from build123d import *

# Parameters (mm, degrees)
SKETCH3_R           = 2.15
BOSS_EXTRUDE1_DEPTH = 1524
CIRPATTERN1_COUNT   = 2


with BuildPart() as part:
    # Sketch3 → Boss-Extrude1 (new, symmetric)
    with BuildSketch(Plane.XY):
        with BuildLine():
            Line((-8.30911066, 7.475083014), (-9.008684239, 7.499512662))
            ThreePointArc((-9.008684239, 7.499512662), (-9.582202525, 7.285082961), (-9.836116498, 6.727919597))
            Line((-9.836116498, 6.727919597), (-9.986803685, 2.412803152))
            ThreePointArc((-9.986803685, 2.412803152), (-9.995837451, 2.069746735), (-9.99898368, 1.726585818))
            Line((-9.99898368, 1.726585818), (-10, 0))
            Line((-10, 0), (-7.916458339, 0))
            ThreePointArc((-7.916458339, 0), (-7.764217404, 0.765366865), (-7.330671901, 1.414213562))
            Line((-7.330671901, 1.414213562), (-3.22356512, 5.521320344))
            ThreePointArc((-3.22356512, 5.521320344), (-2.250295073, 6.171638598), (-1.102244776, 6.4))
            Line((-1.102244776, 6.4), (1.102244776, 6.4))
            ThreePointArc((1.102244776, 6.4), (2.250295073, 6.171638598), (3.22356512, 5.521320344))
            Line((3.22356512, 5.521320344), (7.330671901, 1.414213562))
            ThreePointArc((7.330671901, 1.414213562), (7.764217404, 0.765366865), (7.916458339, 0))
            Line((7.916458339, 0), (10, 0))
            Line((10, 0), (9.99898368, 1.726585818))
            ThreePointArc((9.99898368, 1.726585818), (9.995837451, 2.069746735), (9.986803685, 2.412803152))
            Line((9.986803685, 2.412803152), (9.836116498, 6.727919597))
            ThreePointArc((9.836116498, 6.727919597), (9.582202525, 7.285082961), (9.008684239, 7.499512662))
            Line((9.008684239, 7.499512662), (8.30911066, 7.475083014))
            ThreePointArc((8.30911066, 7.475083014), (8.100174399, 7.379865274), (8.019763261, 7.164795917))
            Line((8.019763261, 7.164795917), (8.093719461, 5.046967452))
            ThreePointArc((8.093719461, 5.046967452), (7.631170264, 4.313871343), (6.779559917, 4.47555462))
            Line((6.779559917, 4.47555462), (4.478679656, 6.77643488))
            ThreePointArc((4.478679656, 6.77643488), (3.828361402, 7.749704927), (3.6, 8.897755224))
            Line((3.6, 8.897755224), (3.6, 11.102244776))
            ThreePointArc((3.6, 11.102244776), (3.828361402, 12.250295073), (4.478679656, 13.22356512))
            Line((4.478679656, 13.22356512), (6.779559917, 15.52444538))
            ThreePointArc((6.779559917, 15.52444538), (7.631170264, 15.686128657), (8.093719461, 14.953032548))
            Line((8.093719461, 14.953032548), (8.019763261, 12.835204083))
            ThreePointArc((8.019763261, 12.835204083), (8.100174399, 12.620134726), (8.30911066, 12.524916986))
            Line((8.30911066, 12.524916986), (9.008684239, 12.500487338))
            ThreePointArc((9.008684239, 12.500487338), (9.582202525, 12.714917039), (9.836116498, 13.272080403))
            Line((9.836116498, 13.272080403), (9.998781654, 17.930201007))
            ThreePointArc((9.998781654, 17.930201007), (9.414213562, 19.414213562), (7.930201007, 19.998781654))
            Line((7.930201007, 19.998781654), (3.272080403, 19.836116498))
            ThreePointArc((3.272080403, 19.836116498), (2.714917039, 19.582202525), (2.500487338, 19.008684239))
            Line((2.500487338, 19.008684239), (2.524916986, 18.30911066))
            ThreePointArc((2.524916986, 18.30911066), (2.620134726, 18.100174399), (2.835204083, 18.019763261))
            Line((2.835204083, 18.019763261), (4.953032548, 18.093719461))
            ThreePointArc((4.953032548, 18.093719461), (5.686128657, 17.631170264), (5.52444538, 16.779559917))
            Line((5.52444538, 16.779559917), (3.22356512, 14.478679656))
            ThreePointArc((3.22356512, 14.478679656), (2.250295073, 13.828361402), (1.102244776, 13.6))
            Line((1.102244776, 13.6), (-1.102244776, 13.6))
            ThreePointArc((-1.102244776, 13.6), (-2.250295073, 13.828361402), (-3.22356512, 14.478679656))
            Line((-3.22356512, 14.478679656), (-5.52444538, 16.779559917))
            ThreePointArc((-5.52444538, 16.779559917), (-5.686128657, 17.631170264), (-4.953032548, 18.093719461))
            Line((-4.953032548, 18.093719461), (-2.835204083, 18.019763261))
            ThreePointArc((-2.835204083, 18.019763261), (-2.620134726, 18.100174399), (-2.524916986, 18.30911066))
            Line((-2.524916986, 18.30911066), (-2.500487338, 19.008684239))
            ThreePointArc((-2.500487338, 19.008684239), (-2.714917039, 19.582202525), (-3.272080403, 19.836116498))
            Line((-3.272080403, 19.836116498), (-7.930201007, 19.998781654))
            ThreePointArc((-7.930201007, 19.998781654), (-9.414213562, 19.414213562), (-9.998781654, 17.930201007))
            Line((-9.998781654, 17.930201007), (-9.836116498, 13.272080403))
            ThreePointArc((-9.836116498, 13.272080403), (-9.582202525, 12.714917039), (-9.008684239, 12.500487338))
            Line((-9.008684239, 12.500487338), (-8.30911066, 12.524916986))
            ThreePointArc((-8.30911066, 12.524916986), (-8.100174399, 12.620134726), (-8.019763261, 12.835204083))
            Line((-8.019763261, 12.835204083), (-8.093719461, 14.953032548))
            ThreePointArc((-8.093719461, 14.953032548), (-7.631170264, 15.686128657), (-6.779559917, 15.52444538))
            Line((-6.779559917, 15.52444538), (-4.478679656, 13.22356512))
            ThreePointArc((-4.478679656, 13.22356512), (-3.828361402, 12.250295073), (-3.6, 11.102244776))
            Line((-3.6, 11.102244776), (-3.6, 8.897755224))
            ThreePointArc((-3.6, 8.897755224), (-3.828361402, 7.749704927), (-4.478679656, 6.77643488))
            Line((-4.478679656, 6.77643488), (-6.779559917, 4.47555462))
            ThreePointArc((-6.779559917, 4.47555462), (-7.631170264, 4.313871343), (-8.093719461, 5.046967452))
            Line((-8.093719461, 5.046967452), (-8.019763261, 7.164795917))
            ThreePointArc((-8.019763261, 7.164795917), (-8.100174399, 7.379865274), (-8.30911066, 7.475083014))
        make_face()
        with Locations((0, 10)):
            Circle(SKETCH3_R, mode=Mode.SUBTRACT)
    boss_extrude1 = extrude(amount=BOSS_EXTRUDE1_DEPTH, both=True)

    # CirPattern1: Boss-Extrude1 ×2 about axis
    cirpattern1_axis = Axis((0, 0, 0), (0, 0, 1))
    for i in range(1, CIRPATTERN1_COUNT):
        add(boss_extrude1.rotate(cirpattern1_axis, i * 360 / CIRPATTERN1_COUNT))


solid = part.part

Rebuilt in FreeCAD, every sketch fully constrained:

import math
import FreeCAD as App
import Part
import Sketcher

V = App.Vector
Q = App.Units.Quantity

doc = App.newDocument("Part")
body = doc.addObject("PartDesign::Body", "Body")

# Sketch on XY plane
sketch1 = body.newObject("Sketcher::SketchObject", "Sketch")
sketch1.AttachmentSupport = (doc.getObject("XY_Plane"), [""])
sketch1.MapMode = "FlatFace"
sketch1.addGeometry(Part.LineSegment(V(-8.31, 7.48, 0), V(-9.01, 7.5, 0)), False)
sketch1.addGeometry(Part.ArcOfCircle(Part.Circle(V(-9.04, 6.7, 0), V(0, 0, 1), 0.8), math.radians(88), math.radians(178)), False)
sketch1.addGeometry(Part.LineSegment(V(-9.84, 6.73, 0), V(-9.99, 2.41, 0)), False)
sketch1.addGeometry(Part.ArcOfCircle(Part.Circle(V(10, 1.71, 0), V(0, 0, 1), 20), math.radians(178), math.radians(179.97)), False)
sketch1.addGeometry(Part.LineSegment(V(-10, 1.73, 0), V(-10, 0, 0)), False)
sketch1.addGeometry(Part.LineSegment(V(-10, 0, 0), V(-7.92, 0, 0)), False)
sketch1.addGeometry(Part.ArcOfCircle(Part.Circle(V(-5.92, 0, 0), V(0, 0, 1), 2), math.radians(135), math.radians(180)), False)
sketch1.addGeometry(Part.LineSegment(V(-7.33, 1.41, 0), V(-3.22, 5.52, 0)), False)
sketch1.addGeometry(Part.ArcOfCircle(Part.Circle(V(-1.1, 3.4, 0), V(0, 0, 1), 3), math.radians(90), math.radians(135)), False)
sketch1.addGeometry(Part.LineSegment(V(-1.1, 6.4, 0), V(1.1, 6.4, 0)), False)
sketch1.addGeometry(Part.ArcOfCircle(Part.Circle(V(1.1, 3.4, 0), V(0, 0, 1), 3), math.radians(45), math.radians(90)), False)
sketch1.addGeometry(Part.LineSegment(V(3.22, 5.52, 0), V(7.33, 1.41, 0)), False)
sketch1.addGeometry(Part.ArcOfCircle(Part.Circle(V(5.92, 0, 0), V(0, 0, 1), 2), math.radians(0), math.radians(45)), False)
sketch1.addGeometry(Part.LineSegment(V(7.92, 0, 0), V(10, 0, 0)), False)
sketch1.addGeometry(Part.LineSegment(V(10, 0, 0), V(10, 1.73, 0)), False)
sketch1.addGeometry(Part.ArcOfCircle(Part.Circle(V(-10, 1.71, 0), V(0, 0, 1), 20), math.radians(0.03), math.radians(2)), False)
sketch1.addGeometry(Part.LineSegment(V(9.99, 2.41, 0), V(9.84, 6.73, 0)), False)
sketch1.addGeometry(Part.ArcOfCircle(Part.Circle(V(9.04, 6.7, 0), V(0, 0, 1), 0.8), math.radians(2), math.radians(92)), False)
sketch1.addGeometry(Part.LineSegment(V(9.01, 7.5, 0), V(8.31, 7.48, 0)), False)
sketch1.addGeometry(Part.ArcOfCircle(Part.Circle(V(8.32, 7.18, 0), V(0, 0, 1), 0.3), math.radians(92), math.radians(182)), False)
sketch1.addGeometry(Part.LineSegment(V(8.02, 7.16, 0), V(8.09, 5.05, 0)), False)
sketch1.addGeometry(Part.ArcOfCircle(Part.Circle(V(7.32, 5.02, 0), V(0, 0, 1), 0.77), math.radians(-135), math.radians(2)), False)
sketch1.addGeometry(Part.LineSegment(V(6.78, 4.48, 0), V(4.48, 6.78, 0)), False)
sketch1.addGeometry(Part.ArcOfCircle(Part.Circle(V(6.6, 8.9, 0), V(0, 0, 1), 3), math.radians(180), math.radians(225)), False)
sketch1.addGeometry(Part.LineSegment(V(3.6, 8.9, 0), V(3.6, 11.1, 0)), False)
sketch1.addGeometry(Part.ArcOfCircle(Part.Circle(V(6.6, 11.1, 0), V(0, 0, 1), 3), math.radians(135), math.radians(180)), False)
sketch1.addGeometry(Part.LineSegment(V(4.48, 13.22, 0), V(6.78, 15.52, 0)), False)
sketch1.addGeometry(Part.ArcOfCircle(Part.Circle(V(7.32, 14.98, 0), V(0, 0, 1), 0.77), math.radians(-2), math.radians(135)), False)
sketch1.addGeometry(Part.LineSegment(V(8.09, 14.95, 0), V(8.02, 12.84, 0)), False)
sketch1.addGeometry(Part.ArcOfCircle(Part.Circle(V(8.32, 12.82, 0), V(0, 0, 1), 0.3), math.radians(178), math.radians(268)), False)
sketch1.addGeometry(Part.LineSegment(V(8.31, 12.52, 0), V(9.01, 12.5, 0)), False)
sketch1.addGeometry(Part.ArcOfCircle(Part.Circle(V(9.04, 13.3, 0), V(0, 0, 1), 0.8), math.radians(-92), math.radians(-2)), False)
sketch1.addGeometry(Part.LineSegment(V(9.84, 13.27, 0), V(10, 17.93, 0)), False)
sketch1.addGeometry(Part.ArcOfCircle(Part.Circle(V(8, 18, 0), V(0, 0, 1), 2), math.radians(-2), math.radians(92)), False)
sketch1.addGeometry(Part.LineSegment(V(7.93, 20, 0), V(3.27, 19.84, 0)), False)
sketch1.addGeometry(Part.ArcOfCircle(Part.Circle(V(3.3, 19.04, 0), V(0, 0, 1), 0.8), math.radians(92), math.radians(182)), False)
sketch1.addGeometry(Part.LineSegment(V(2.5, 19.01, 0), V(2.52, 18.31, 0)), False)
sketch1.addGeometry(Part.ArcOfCircle(Part.Circle(V(2.82, 18.32, 0), V(0, 0, 1), 0.3), math.radians(-178), math.radians(-88)), False)
sketch1.addGeometry(Part.LineSegment(V(2.84, 18.02, 0), V(4.95, 18.09, 0)), False)
sketch1.addGeometry(Part.ArcOfCircle(Part.Circle(V(4.98, 17.32, 0), V(0, 0, 1), 0.77), math.radians(-45), math.radians(92)), False)
sketch1.addGeometry(Part.LineSegment(V(5.52, 16.78, 0), V(3.22, 14.48, 0)), False)
sketch1.addGeometry(Part.ArcOfCircle(Part.Circle(V(1.1, 16.6, 0), V(0, 0, 1), 3), math.radians(-90), math.radians(-45)), False)
sketch1.addGeometry(Part.LineSegment(V(1.1, 13.6, 0), V(-1.1, 13.6, 0)), False)
sketch1.addGeometry(Part.ArcOfCircle(Part.Circle(V(-1.1, 16.6, 0), V(0, 0, 1), 3), math.radians(-135), math.radians(-90)), False)
sketch1.addGeometry(Part.LineSegment(V(-3.22, 14.48, 0), V(-5.52, 16.78, 0)), False)
sketch1.addGeometry(Part.ArcOfCircle(Part.Circle(V(-4.98, 17.32, 0), V(0, 0, 1), 0.77), math.radians(88), math.radians(225)), False)
sketch1.addGeometry(Part.LineSegment(V(-4.95, 18.09, 0), V(-2.84, 18.02, 0)), False)
sketch1.addGeometry(Part.ArcOfCircle(Part.Circle(V(-2.82, 18.32, 0), V(0, 0, 1), 0.3), math.radians(-92), math.radians(-2)), False)
sketch1.addGeometry(Part.LineSegment(V(-2.52, 18.31, 0), V(-2.5, 19.01, 0)), False)
sketch1.addGeometry(Part.ArcOfCircle(Part.Circle(V(-3.3, 19.04, 0), V(0, 0, 1), 0.8), math.radians(-2), math.radians(88)), False)
sketch1.addGeometry(Part.LineSegment(V(-3.27, 19.84, 0), V(-7.93, 20, 0)), False)
sketch1.addGeometry(Part.ArcOfCircle(Part.Circle(V(-8, 18, 0), V(0, 0, 1), 2), math.radians(88), math.radians(182)), False)
sketch1.addGeometry(Part.LineSegment(V(-10, 17.93, 0), V(-9.84, 13.27, 0)), False)
sketch1.addGeometry(Part.ArcOfCircle(Part.Circle(V(-9.04, 13.3, 0), V(0, 0, 1), 0.8), math.radians(-178), math.radians(-88)), False)
sketch1.addGeometry(Part.LineSegment(V(-9.01, 12.5, 0), V(-8.31, 12.52, 0)), False)
sketch1.addGeometry(Part.ArcOfCircle(Part.Circle(V(-8.32, 12.82, 0), V(0, 0, 1), 0.3), math.radians(-88), math.radians(2)), False)
sketch1.addGeometry(Part.LineSegment(V(-8.02, 12.84, 0), V(-8.09, 14.95, 0)), False)
sketch1.addGeometry(Part.ArcOfCircle(Part.Circle(V(-7.32, 14.98, 0), V(0, 0, 1), 0.77), math.radians(45), math.radians(182)), False)
sketch1.addGeometry(Part.LineSegment(V(-6.78, 15.52, 0), V(-4.48, 13.22, 0)), False)
sketch1.addGeometry(Part.ArcOfCircle(Part.Circle(V(-6.6, 11.1, 0), V(0, 0, 1), 3), math.radians(0), math.radians(45)), False)
sketch1.addGeometry(Part.LineSegment(V(-3.6, 11.1, 0), V(-3.6, 8.9, 0)), False)
sketch1.addGeometry(Part.ArcOfCircle(Part.Circle(V(-6.6, 8.9, 0), V(0, 0, 1), 3), math.radians(-45), math.radians(0)), False)
sketch1.addGeometry(Part.LineSegment(V(-4.48, 6.78, 0), V(-6.78, 4.48, 0)), False)
sketch1.addGeometry(Part.ArcOfCircle(Part.Circle(V(-7.32, 5.02, 0), V(0, 0, 1), 0.77), math.radians(178), math.radians(315)), False)
sketch1.addGeometry(Part.LineSegment(V(-8.09, 5.05, 0), V(-8.02, 7.16, 0)), False)
sketch1.addGeometry(Part.ArcOfCircle(Part.Circle(V(-8.32, 7.18, 0), V(0, 0, 1), 0.3), math.radians(-2), math.radians(88)), False)
sketch1.addGeometry(Part.Circle(V(0, 10, 0), V(0, 0, 1), 2.15), False)
sketch1.addConstraint(Sketcher.Constraint("Tangent", 0, 2, 1, 1))
sketch1.addConstraint(Sketcher.Constraint("Tangent", 1, 2, 2, 1))
sketch1.addConstraint(Sketcher.Constraint("Tangent", 2, 2, 3, 1))
sketch1.addConstraint(Sketcher.Constraint("Tangent", 3, 2, 4, 1))
sketch1.addConstraint(Sketcher.Constraint("Coincident", 4, 2, 5, 1))
sketch1.addConstraint(Sketcher.Constraint("Coincident", 5, 2, 6, 2))
sketch1.addConstraint(Sketcher.Constraint("Tangent", 6, 1, 7, 1))
sketch1.addConstraint(Sketcher.Constraint("Tangent", 7, 2, 8, 2))
sketch1.addConstraint(Sketcher.Constraint("Tangent", 8, 1, 9, 1))
sketch1.addConstraint(Sketcher.Constraint("Tangent", 9, 2, 10, 2))
sketch1.addConstraint(Sketcher.Constraint("Tangent", 10, 1, 11, 1))
sketch1.addConstraint(Sketcher.Constraint("Tangent", 11, 2, 12, 2))
sketch1.addConstraint(Sketcher.Constraint("Coincident", 12, 1, 13, 1))
sketch1.addConstraint(Sketcher.Constraint("Coincident", 13, 2, 14, 1))
sketch1.addConstraint(Sketcher.Constraint("Tangent", 14, 2, 15, 1))
sketch1.addConstraint(Sketcher.Constraint("Tangent", 15, 2, 16, 1))
sketch1.addConstraint(Sketcher.Constraint("Tangent", 16, 2, 17, 1))
sketch1.addConstraint(Sketcher.Constraint("Tangent", 17, 2, 18, 1))
sketch1.addConstraint(Sketcher.Constraint("Tangent", 18, 2, 19, 1))
sketch1.addConstraint(Sketcher.Constraint("Tangent", 19, 2, 20, 1))
sketch1.addConstraint(Sketcher.Constraint("Tangent", 20, 2, 21, 2))
sketch1.addConstraint(Sketcher.Constraint("Tangent", 21, 1, 22, 1))
sketch1.addConstraint(Sketcher.Constraint("Tangent", 22, 2, 23, 2))
sketch1.addConstraint(Sketcher.Constraint("Tangent", 23, 1, 24, 1))
sketch1.addConstraint(Sketcher.Constraint("Tangent", 24, 2, 25, 2))
sketch1.addConstraint(Sketcher.Constraint("Tangent", 25, 1, 26, 1))
sketch1.addConstraint(Sketcher.Constraint("Tangent", 26, 2, 27, 2))
sketch1.addConstraint(Sketcher.Constraint("Tangent", 27, 1, 28, 1))
sketch1.addConstraint(Sketcher.Constraint("Tangent", 28, 2, 29, 1))
sketch1.addConstraint(Sketcher.Constraint("Tangent", 29, 2, 30, 1))
sketch1.addConstraint(Sketcher.Constraint("Tangent", 30, 2, 31, 1))
sketch1.addConstraint(Sketcher.Constraint("Tangent", 31, 2, 32, 1))
sketch1.addConstraint(Sketcher.Constraint("Tangent", 32, 2, 33, 1))
sketch1.addConstraint(Sketcher.Constraint("Tangent", 33, 2, 34, 1))
sketch1.addConstraint(Sketcher.Constraint("Tangent", 34, 2, 35, 1))
sketch1.addConstraint(Sketcher.Constraint("Tangent", 35, 2, 36, 1))
sketch1.addConstraint(Sketcher.Constraint("Tangent", 36, 2, 37, 1))
sketch1.addConstraint(Sketcher.Constraint("Tangent", 37, 2, 38, 1))
sketch1.addConstraint(Sketcher.Constraint("Tangent", 38, 2, 39, 2))
sketch1.addConstraint(Sketcher.Constraint("Tangent", 39, 1, 40, 1))
sketch1.addConstraint(Sketcher.Constraint("Tangent", 40, 2, 41, 2))
sketch1.addConstraint(Sketcher.Constraint("Tangent", 41, 1, 42, 1))
sketch1.addConstraint(Sketcher.Constraint("Tangent", 42, 2, 43, 2))
sketch1.addConstraint(Sketcher.Constraint("Tangent", 43, 1, 44, 1))
sketch1.addConstraint(Sketcher.Constraint("Tangent", 44, 2, 45, 2))
sketch1.addConstraint(Sketcher.Constraint("Tangent", 45, 1, 46, 1))
sketch1.addConstraint(Sketcher.Constraint("Tangent", 46, 2, 47, 1))
sketch1.addConstraint(Sketcher.Constraint("Tangent", 47, 2, 48, 1))
sketch1.addConstraint(Sketcher.Constraint("Tangent", 48, 2, 49, 1))
sketch1.addConstraint(Sketcher.Constraint("Tangent", 49, 2, 50, 1))
sketch1.addConstraint(Sketcher.Constraint("Tangent", 50, 2, 51, 1))
sketch1.addConstraint(Sketcher.Constraint("Tangent", 51, 2, 52, 1))
sketch1.addConstraint(Sketcher.Constraint("Tangent", 52, 2, 53, 1))
sketch1.addConstraint(Sketcher.Constraint("Tangent", 53, 2, 54, 1))
sketch1.addConstraint(Sketcher.Constraint("Tangent", 54, 2, 55, 1))
sketch1.addConstraint(Sketcher.Constraint("Tangent", 55, 2, 56, 1))
sketch1.addConstraint(Sketcher.Constraint("Tangent", 56, 2, 57, 2))
sketch1.addConstraint(Sketcher.Constraint("Tangent", 57, 1, 58, 1))
sketch1.addConstraint(Sketcher.Constraint("Tangent", 58, 2, 59, 2))
sketch1.addConstraint(Sketcher.Constraint("Tangent", 59, 1, 60, 1))
sketch1.addConstraint(Sketcher.Constraint("Tangent", 60, 2, 61, 2))
sketch1.addConstraint(Sketcher.Constraint("Tangent", 61, 1, 62, 1))
sketch1.addConstraint(Sketcher.Constraint("Tangent", 62, 2, 63, 2))
sketch1.addConstraint(Sketcher.Constraint("Tangent", 63, 1, 64, 1))
sketch1.addConstraint(Sketcher.Constraint("Tangent", 64, 2, 65, 1))
sketch1.addConstraint(Sketcher.Constraint("Tangent", 65, 2, 0, 1))
sketch1.addConstraint(Sketcher.Constraint("Horizontal", 5))
sketch1.addConstraint(Sketcher.Constraint("Horizontal", 9))
sketch1.addConstraint(Sketcher.Constraint("Horizontal", 13))
sketch1.addConstraint(Sketcher.Constraint("Vertical", 24))
sketch1.addConstraint(Sketcher.Constraint("Horizontal", 42))
sketch1.addConstraint(Sketcher.Constraint("Vertical", 60))
sketch1.addConstraint(Sketcher.Constraint("Equal", 8, 10))
sketch1.addConstraint(Sketcher.Constraint("Equal", 6, 12))
sketch1.addConstraint(Sketcher.Constraint("Equal", 3, 15))
sketch1.addConstraint(Sketcher.Constraint("Equal", 1, 17))
sketch1.addConstraint(Sketcher.Constraint("Equal", 10, 23))
sketch1.addConstraint(Sketcher.Constraint("Equal", 23, 25))
sketch1.addConstraint(Sketcher.Constraint("Equal", 21, 27))
sketch1.addConstraint(Sketcher.Constraint("Equal", 19, 29))
sketch1.addConstraint(Sketcher.Constraint("Equal", 17, 31))
sketch1.addConstraint(Sketcher.Constraint("Equal", 12, 33))
sketch1.addConstraint(Sketcher.Constraint("Equal", 31, 35))
sketch1.addConstraint(Sketcher.Constraint("Equal", 29, 37))
sketch1.addConstraint(Sketcher.Constraint("Equal", 27, 39))
sketch1.addConstraint(Sketcher.Constraint("Equal", 25, 41))
sketch1.addConstraint(Sketcher.Constraint("Equal", 41, 43))
sketch1.addConstraint(Sketcher.Constraint("Equal", 39, 45))
sketch1.addConstraint(Sketcher.Constraint("Equal", 37, 47))
sketch1.addConstraint(Sketcher.Constraint("Equal", 35, 49))
sketch1.addConstraint(Sketcher.Constraint("Equal", 33, 51))
sketch1.addConstraint(Sketcher.Constraint("Equal", 49, 53))
sketch1.addConstraint(Sketcher.Constraint("Equal", 47, 55))
sketch1.addConstraint(Sketcher.Constraint("Equal", 45, 57))
sketch1.addConstraint(Sketcher.Constraint("Equal", 43, 59))
sketch1.addConstraint(Sketcher.Constraint("Equal", 59, 61))
sketch1.addConstraint(Sketcher.Constraint("Equal", 57, 63))
sketch1.addConstraint(Sketcher.Constraint("Equal", 55, 65))
sketch1.addConstraint(Sketcher.Constraint("Symmetric", 6, 3, 12, 3, -1, 1))
sketch1.addConstraint(Sketcher.Constraint("Symmetric", 4, 2, 13, 2, -1, 1))
sketch1.addConstraint(Sketcher.Constraint("Symmetric", 3, 3, 15, 3, -2))
sketch1.addConstraint(Sketcher.Constraint("Symmetric", 1, 3, 17, 3, -2))
sketch1.addConstraint(Sketcher.Constraint("Symmetric", 39, 3, 45, 3, -2))
sketch1.addConstraint(Sketcher.Constraint("Symmetric", 37, 3, 47, 3, -2))
sketch1.addConstraint(Sketcher.Constraint("Symmetric", 35, 3, 49, 3, -2))
sketch1.addConstraint(Sketcher.Constraint("Symmetric", 33, 3, 51, 3, -2))
sketch1.addConstraint(Sketcher.Constraint("Symmetric", 31, 3, 53, 3, -2))
sketch1.addConstraint(Sketcher.Constraint("Symmetric", 29, 3, 55, 3, -2))
sketch1.addConstraint(Sketcher.Constraint("Symmetric", 27, 3, 57, 3, -2))
sketch1.addConstraint(Sketcher.Constraint("Symmetric", 25, 3, 59, 3, -2))
sketch1.addConstraint(Sketcher.Constraint("Symmetric", 21, 3, 63, 3, -2))
sketch1.addConstraint(Sketcher.Constraint("Symmetric", 19, 3, 65, 3, -2))
sketch1.addConstraint(Sketcher.Constraint("Symmetric", 7, 2, 10, 1, -2))
sketch1.addConstraint(Sketcher.Constraint("PointOnObject", 66, 3, -2))
sketch1.addConstraint(Sketcher.Constraint("PointOnObject", 4, 2, -1))
sketch1.addConstraint(Sketcher.Constraint("Perpendicular", 0, 2))
sketch1.addConstraint(Sketcher.Constraint("Perpendicular", 7, 11))
sketch1.addConstraint(Sketcher.Constraint("Perpendicular", 18, 20))
sketch1.addConstraint(Sketcher.Constraint("Parallel", 11, 22))
sketch1.addConstraint(Sketcher.Constraint("Perpendicular", 22, 26))
sketch1.addConstraint(Sketcher.Constraint("Parallel", 2, 28))
sketch1.addConstraint(Sketcher.Constraint("Perpendicular", 28, 30))
sketch1.addConstraint(Sketcher.Constraint("Perpendicular", 30, 32))
sketch1.addConstraint(Sketcher.Constraint("Perpendicular", 20, 34))
sketch1.addConstraint(Sketcher.Constraint("Perpendicular", 34, 36))
sketch1.addConstraint(Sketcher.Constraint("Perpendicular", 36, 38))
sketch1.addConstraint(Sketcher.Constraint("Parallel", 26, 40))
sketch1.addConstraint(Sketcher.Constraint("Perpendicular", 40, 44))
sketch1.addConstraint(Sketcher.Constraint("Perpendicular", 58, 62))
sketch1.addConstraint(Sketcher.Constraint("Vertical", 21, 3, 27, 3))
sketch1.addConstraint(Sketcher.Constraint("Vertical", 19, 3, 29, 3))
sketch1.addConstraint(Sketcher.Constraint("Vertical", 17, 3, 31, 3))
sketch1.addConstraint(Sketcher.Constraint("Vertical", 10, 3, 41, 3))
sketch1.addConstraint(Sketcher.Constraint("Equal", 42, 24))
sketch1.addConstraint(Sketcher.Constraint("Equal", 32, 34))
sketch1.addConstraint(Sketcher.Constraint("Equal", 30, 36))
sketch1.addConstraint(Sketcher.Constraint("Equal", 28, 38))
sketch1.addConstraint(Sketcher.Constraint("Equal", 26, 40))
sketch1.addConstraint(Sketcher.Constraint("Radius", 6, 2.0))
sketch1.addConstraint(Sketcher.Constraint("Radius", 8, 3.0))
sketch1.addConstraint(Sketcher.Constraint("Diameter", 66, 4.3))
sketch1.addConstraint(Sketcher.Constraint("Radius", 1, 0.8))
sketch1.addConstraint(Sketcher.Constraint("Radius", 19, 0.3))
sketch1.addConstraint(Sketcher.Constraint("Angle", 0, Q("178 deg")))
sketch1.addConstraint(Sketcher.Constraint("DistanceX", -1, 1, 33, 3, 8.0))
sketch1.addConstraint(Sketcher.Constraint("DistanceY", -1, 1, 33, 3, 18.0))
sketch1.addConstraint(Sketcher.Constraint("DistanceY", -1, 1, 66, 3, 10.0))
sketch1.addConstraint(Sketcher.Constraint("DistanceX", 4, 2, -1, 1, 10.0))
sketch1.addConstraint(Sketcher.Constraint("Distance", 0, 0.7))
sketch1.addConstraint(Sketcher.Constraint("DistanceY", -1, 1, 1, 3, 6.7))
sketch1.addConstraint(Sketcher.Constraint("DistanceY", -1, 1, 8, 3, 3.4))
sketch1.addConstraint(Sketcher.Constraint("DistanceX", -1, 1, 23, 3, 6.6))
sketch1.addConstraint(Sketcher.Constraint("Radius", 21, 0.770092))
sketch1.addConstraint(Sketcher.Constraint("Radius", 3, 20.000005))
sketch1.addConstraint(Sketcher.Constraint("DistanceX", 5, 1, 5, 2, 2.083542))
sketch1.addConstraint(Sketcher.Constraint("Distance", 2, 4.317747))
pad1 = body.newObject("PartDesign::Pad", "Pad")
pad1.Profile = sketch1
pad1.Length = 3048
pad1.Midplane = True
doc.recompute()

polarpattern = body.newObject("PartDesign::PolarPattern", "PolarPattern")
polarpattern.Originals = [pad1]
polarpattern.Axis = (doc.getObject("Z_Axis"), [""])
polarpattern.Angle = 360
polarpattern.Occurrences = 2
body.Tip = polarpattern

doc.recompute()
